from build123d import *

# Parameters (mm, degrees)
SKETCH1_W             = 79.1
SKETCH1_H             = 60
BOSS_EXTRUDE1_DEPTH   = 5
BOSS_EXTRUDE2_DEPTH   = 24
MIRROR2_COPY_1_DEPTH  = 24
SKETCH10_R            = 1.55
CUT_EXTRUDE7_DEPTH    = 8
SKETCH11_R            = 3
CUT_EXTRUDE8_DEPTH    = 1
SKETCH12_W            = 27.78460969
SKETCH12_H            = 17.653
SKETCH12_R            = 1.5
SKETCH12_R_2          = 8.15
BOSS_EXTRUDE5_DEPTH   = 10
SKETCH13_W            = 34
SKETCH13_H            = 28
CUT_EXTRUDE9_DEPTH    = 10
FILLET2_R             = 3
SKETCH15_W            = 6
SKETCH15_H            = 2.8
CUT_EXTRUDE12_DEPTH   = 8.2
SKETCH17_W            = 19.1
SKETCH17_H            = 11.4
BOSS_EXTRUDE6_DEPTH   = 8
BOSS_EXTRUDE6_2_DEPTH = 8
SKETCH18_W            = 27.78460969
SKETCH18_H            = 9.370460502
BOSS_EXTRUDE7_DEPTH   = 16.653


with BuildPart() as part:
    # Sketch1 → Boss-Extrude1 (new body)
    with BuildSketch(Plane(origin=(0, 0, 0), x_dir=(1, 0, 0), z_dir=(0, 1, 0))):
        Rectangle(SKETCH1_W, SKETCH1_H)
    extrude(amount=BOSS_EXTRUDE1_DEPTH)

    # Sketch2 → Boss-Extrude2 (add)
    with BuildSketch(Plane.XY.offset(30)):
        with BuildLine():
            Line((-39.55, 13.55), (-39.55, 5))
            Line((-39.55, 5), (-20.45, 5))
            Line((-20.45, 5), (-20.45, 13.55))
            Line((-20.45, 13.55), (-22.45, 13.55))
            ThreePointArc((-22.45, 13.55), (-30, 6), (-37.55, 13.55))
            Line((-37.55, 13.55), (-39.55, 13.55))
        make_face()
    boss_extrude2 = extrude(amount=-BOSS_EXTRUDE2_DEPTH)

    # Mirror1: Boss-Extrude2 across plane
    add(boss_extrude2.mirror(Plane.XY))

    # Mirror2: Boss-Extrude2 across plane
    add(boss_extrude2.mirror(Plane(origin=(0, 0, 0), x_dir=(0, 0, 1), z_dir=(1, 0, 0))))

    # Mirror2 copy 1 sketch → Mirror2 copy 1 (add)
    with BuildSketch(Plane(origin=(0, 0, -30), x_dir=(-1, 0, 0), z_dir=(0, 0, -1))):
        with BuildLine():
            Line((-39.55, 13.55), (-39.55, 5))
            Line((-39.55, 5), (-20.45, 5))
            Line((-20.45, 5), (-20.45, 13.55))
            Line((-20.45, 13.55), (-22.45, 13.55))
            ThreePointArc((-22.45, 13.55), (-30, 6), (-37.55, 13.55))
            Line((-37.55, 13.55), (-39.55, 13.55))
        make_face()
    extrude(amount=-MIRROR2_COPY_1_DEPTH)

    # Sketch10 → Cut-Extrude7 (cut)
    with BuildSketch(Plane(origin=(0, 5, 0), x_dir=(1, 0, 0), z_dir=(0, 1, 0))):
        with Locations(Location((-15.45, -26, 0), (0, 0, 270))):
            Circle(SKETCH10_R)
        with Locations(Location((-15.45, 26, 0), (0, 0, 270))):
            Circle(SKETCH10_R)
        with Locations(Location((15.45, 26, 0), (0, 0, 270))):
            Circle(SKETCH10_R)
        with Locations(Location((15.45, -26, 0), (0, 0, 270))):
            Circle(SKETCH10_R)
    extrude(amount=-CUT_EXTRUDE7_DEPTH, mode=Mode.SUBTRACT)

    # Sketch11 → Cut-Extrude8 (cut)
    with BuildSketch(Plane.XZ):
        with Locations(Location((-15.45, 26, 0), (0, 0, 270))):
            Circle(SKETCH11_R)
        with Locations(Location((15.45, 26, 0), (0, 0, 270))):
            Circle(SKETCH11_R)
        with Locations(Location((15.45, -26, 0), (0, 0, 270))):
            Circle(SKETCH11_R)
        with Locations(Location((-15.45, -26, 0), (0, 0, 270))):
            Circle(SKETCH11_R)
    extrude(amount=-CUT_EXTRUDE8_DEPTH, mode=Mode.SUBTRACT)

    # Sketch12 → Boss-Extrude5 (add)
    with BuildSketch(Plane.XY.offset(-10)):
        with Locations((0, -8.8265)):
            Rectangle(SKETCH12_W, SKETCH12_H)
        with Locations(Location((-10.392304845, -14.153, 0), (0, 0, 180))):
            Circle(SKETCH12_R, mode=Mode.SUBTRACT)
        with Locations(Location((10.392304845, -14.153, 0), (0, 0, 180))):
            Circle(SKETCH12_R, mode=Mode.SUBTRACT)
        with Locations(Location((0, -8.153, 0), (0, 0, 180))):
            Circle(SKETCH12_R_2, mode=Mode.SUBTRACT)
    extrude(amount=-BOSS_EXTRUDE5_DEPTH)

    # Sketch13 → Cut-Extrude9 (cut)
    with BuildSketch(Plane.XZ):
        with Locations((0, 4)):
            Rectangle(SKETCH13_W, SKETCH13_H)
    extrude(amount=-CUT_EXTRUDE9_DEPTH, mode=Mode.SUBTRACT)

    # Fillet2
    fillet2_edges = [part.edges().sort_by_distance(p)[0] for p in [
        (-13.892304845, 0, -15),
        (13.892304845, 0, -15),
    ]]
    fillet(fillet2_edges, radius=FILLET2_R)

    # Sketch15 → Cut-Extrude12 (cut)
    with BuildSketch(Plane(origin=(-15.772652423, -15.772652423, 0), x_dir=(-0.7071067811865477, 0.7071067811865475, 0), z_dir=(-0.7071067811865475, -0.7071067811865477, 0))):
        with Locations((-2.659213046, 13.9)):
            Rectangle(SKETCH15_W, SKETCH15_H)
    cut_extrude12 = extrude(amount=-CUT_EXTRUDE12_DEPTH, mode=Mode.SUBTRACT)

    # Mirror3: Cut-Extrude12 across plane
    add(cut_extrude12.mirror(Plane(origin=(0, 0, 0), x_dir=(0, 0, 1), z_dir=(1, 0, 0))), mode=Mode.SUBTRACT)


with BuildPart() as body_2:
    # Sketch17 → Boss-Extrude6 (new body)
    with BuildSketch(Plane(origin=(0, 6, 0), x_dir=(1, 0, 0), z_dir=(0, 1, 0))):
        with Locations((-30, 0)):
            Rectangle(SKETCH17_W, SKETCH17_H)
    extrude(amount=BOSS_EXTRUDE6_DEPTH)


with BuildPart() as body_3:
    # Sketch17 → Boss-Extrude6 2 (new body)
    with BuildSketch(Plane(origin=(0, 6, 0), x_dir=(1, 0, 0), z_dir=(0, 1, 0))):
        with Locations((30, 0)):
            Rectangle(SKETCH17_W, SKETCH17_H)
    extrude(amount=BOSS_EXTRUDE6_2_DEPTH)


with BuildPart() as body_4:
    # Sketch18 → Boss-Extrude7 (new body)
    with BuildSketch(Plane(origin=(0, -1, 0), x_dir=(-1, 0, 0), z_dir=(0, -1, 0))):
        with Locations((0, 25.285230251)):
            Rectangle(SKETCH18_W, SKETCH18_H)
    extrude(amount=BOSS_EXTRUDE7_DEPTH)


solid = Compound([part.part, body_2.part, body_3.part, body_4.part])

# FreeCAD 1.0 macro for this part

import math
import FreeCAD as App
import Part
import Sketcher
from FreeCAD import Vector


def edges_at(feature, points):
    """Names of the edges that pass closest to the given points."""
    edges = feature.Shape.Edges
    near = lambda p: min(range(len(edges)), key=lambda i: edges[i].distToShape(Part.Vertex(*p))[0])
    return sorted({f"Edge{near(p) + 1}" for p in points})

doc = App.newDocument("Part")
body = doc.addObject("PartDesign::Body", "Body")

# Sketch on XZ plane
sketch1 = body.newObject("Sketcher::SketchObject", "Sketch")
sketch1.AttachmentSupport = (doc.getObject("XZ_Plane"), [""])
sketch1.MapMode = "FlatFace"
sketch1.addGeometry(Part.LineSegment(Vector(-40, -30, 0), Vector(-40, 30, 0)), False)
sketch1.addGeometry(Part.LineSegment(Vector(-40, 30, 0), Vector(40, 30, 0)), False)
sketch1.addGeometry(Part.LineSegment(Vector(40, 30, 0), Vector(40, -30, 0)), False)
sketch1.addGeometry(Part.LineSegment(Vector(40, -30, 0), Vector(-40, -30, 0)), False)
sketch1.addConstraint(Sketcher.Constraint("Coincident", 0, 2, 1, 1))
sketch1.addConstraint(Sketcher.Constraint("Coincident", 1, 2, 2, 1))
sketch1.addConstraint(Sketcher.Constraint("Coincident", 2, 2, 3, 1))
sketch1.addConstraint(Sketcher.Constraint("Coincident", 3, 2, 0, 1))
sketch1.addConstraint(Sketcher.Constraint("Vertical", 0))
sketch1.addConstraint(Sketcher.Constraint("Horizontal", 1))
sketch1.addConstraint(Sketcher.Constraint("Vertical", 2))
sketch1.addConstraint(Sketcher.Constraint("Horizontal", 3))
sketch1.addConstraint(Sketcher.Constraint("Symmetric", 0, 2, 2, 2, -1, 1))
sketch1.addConstraint(Sketcher.Constraint("DistanceY", 0, 1, 0, 2, 60.0))
sketch1.addConstraint(Sketcher.Constraint("DistanceX", 1, 1, 1, 2, 79.1))
pad1 = body.newObject("PartDesign::Pad", "Pad")
pad1.Profile = sketch1
pad1.Length = 5
pad1.Reversed = True

# Sketch on XY plane
sketch2 = body.newObject("Sketcher::SketchObject", "Sketch001")
sketch2.AttachmentSupport = (doc.getObject("XY_Plane"), [""])
sketch2.MapMode = "FlatFace"
sketch2.AttachmentOffset = App.Placement(Vector(0, 0, 30), App.Rotation())
sketch2.addGeometry(Part.LineSegment(Vector(-39.5, 13.6, 0), Vector(-39.5, 5, 0)), False)
sketch2.addGeometry(Part.LineSegment(Vector(-39.5, 5, 0), Vector(-20.4, 5, 0)), False)
sketch2.addGeometry(Part.LineSegment(Vector(-20.4, 5, 0), Vector(-20.4, 13.6, 0)), False)
sketch2.addGeometry(Part.LineSegment(Vector(-20.4, 13.6, 0), Vector(-22.4, 13.6, 0)), False)
sketch2.addGeometry(Part.ArcOfCircle(Part.Circle(Vector(-30, 13.6, 0), Vector(0, 0, 1), 7.5), math.radians(180), math.radians(360)), False)
sketch2.addGeometry(Part.LineSegment(Vector(-37.5, 13.6, 0), Vector(-39.5, 13.6, 0)), False)
sketch2.addConstraint(Sketcher.Constraint("Coincident", 0, 2, 1, 1))
sketch2.addConstraint(Sketcher.Constraint("Coincident", 1, 2, 2, 1))
sketch2.addConstraint(Sketcher.Constraint("Coincident", 2, 2, 3, 1))
sketch2.addConstraint(Sketcher.Constraint("Coincident", 3, 2, 4, 2))
sketch2.addConstraint(Sketcher.Constraint("Coincident", 4, 1, 5, 1))
sketch2.addConstraint(Sketcher.Constraint("Coincident", 5, 2, 0, 1))
sketch2.addConstraint(Sketcher.Constraint("Vertical", 0))
sketch2.addConstraint(Sketcher.Constraint("Horizontal", 1))
sketch2.addConstraint(Sketcher.Constraint("Vertical", 2))
sketch2.addConstraint(Sketcher.Constraint("Horizontal", 3))
sketch2.addConstraint(Sketcher.Constraint("Horizontal", 5))
sketch2.addConstraint(Sketcher.Constraint("Horizontal", 4, 3, 2, 2))
sketch2.addConstraint(Sketcher.Constraint("Horizontal", 3, 2, 4, 1))
sketch2.addConstraint(Sketcher.Constraint("Equal", 3, 5))
sketch2.addConstraint(Sketcher.Constraint("DistanceX", 3, 2, 3, 1, 2.0))
sketch2.addConstraint(Sketcher.Constraint("Radius", 4, 7.55))
sketch2.addConstraint(Sketcher.Constraint("DistanceX", 4, 3, -1, 1, 30.0))
sketch2.addConstraint(Sketcher.Constraint("DistanceY", -1, 1, 0, 2, 5.0))
sketch2.addConstraint(Sketcher.Constraint("DistanceY", 0, 2, 0, 1, 8.55))
pad2 = body.newObject("PartDesign::Pad", "Pad001")
pad2.Profile = sketch2
pad2.Length = 24
pad2.Reversed = True
doc.recompute()

mirrored = body.newObject("PartDesign::Mirrored", "Mirrored")
mirrored.Originals = [pad2]
mirrored.MirrorPlane = (doc.getObject("XY_Plane"), [""])
body.Tip = mirrored
doc.recompute()

mirrored2 = body.newObject("PartDesign::Mirrored", "Mirrored001")
mirrored2.Originals = [pad2]
mirrored2.MirrorPlane = (doc.getObject("YZ_Plane"), [""])
body.Tip = mirrored2

# Sketch on XY plane
sketch3 = body.newObject("Sketcher::SketchObject", "Sketch002")
sketch3.AttachmentSupport = (doc.getObject("XY_Plane"), [""])
sketch3.MapMode = "FlatFace"
sketch3.AttachmentOffset = App.Placement(Vector(0, 0, -30), App.Rotation())
sketch3.addGeometry(Part.LineSegment(Vector(39.5, 13.6, 0), Vector(39.5, 5, 0)), False)
sketch3.addGeometry(Part.LineSegment(Vector(39.5, 5, 0), Vector(20.4, 5, 0)), False)
sketch3.addGeometry(Part.LineSegment(Vector(20.4, 5, 0), Vector(20.4, 13.6, 0)), False)
sketch3.addGeometry(Part.LineSegment(Vector(20.4, 13.6, 0), Vector(22.4, 13.6, 0)), False)
sketch3.addGeometry(Part.ArcOfCircle(Part.Circle(Vector(30, 13.6, 0), Vector(0, 0, 1), 7.5), math.radians(180), math.radians(360)), False)
sketch3.addGeometry(Part.LineSegment(Vector(37.5, 13.6, 0), Vector(39.5, 13.6, 0)), False)
sketch3.addConstraint(Sketcher.Constraint("Coincident", 0, 2, 1, 1))
sketch3.addConstraint(Sketcher.Constraint("Coincident", 1, 2, 2, 1))
sketch3.addConstraint(Sketcher.Constraint("Coincident", 2, 2, 3, 1))
sketch3.addConstraint(Sketcher.Constraint("Coincident", 3, 2, 4, 1))
sketch3.addConstraint(Sketcher.Constraint("Coincident", 4, 2, 5, 1))
sketch3.addConstraint(Sketcher.Constraint("Coincident", 5, 2, 0, 1))
sketch3.addConstraint(Sketcher.Constraint("Vertical", 0))
sketch3.addConstraint(Sketcher.Constraint("Horizontal", 1))
sketch3.addConstraint(Sketcher.Constraint("Vertical", 2))
sketch3.addConstraint(Sketcher.Constraint("Horizontal", 3))
sketch3.addConstraint(Sketcher.Constraint("Horizontal", 5))
sketch3.addConstraint(Sketcher.Constraint("Horizontal", 4, 3, 2, 2))
sketch3.addConstraint(Sketcher.Constraint("Horizontal", 3, 2, 4, 2))
sketch3.addConstraint(Sketcher.Constraint("Equal", 3, 5))
sketch3.addConstraint(Sketcher.Constraint("DistanceX", 3, 1, 3, 2, 2.0))
sketch3.addConstraint(Sketcher.Constraint("Radius", 4, 7.55))
sketch3.addConstraint(Sketcher.Constraint("DistanceX", -1, 1, 4, 3, 30.0))
sketch3.addConstraint(Sketcher.Constraint("DistanceY", -1, 1, 0, 2, 5.0))
sketch3.addConstraint(Sketcher.Constraint("DistanceY", 0, 2, 0, 1, 8.55))
pad3 = body.newObject("PartDesign::Pad", "Pad002")
pad3.Profile = sketch3
pad3.Length = 24

# Sketch on XZ plane
sketch4 = body.newObject("Sketcher::SketchObject", "Sketch003")
sketch4.AttachmentSupport = (doc.getObject("XZ_Plane"), [""])
sketch4.MapMode = "FlatFace"
sketch4.AttachmentOffset = App.Placement(Vector(0, 0, -5), App.Rotation())
sketch4.addGeometry(Part.Circle(Vector(-15.4, 26, 0), Vector(0, 0, 1), 1.6), False)
sketch4.addGeometry(Part.Circle(Vector(-15.4, -26, 0), Vector(0, 0, 1), 1.6), False)
sketch4.addGeometry(Part.Circle(Vector(15.4, -26, 0), Vector(0, 0, 1), 1.6), False)
sketch4.addGeometry(Part.Circle(Vector(15.4, 26, 0), Vector(0, 0, 1), 1.6), False)
sketch4.addConstraint(Sketcher.Constraint("Equal", 0, 1))
sketch4.addConstraint(Sketcher.Constraint("Equal", 1, 2))
sketch4.addConstraint(Sketcher.Constraint("Equal", 2, 3))
sketch4.addConstraint(Sketcher.Constraint("Symmetric", 0, 3, 2, 3, -1, 1))
sketch4.addConstraint(Sketcher.Constraint("Symmetric", 1, 3, 3, 3, -1, 1))
sketch4.addConstraint(Sketcher.Constraint("Symmetric", 1, 3, 2, 3, -2))
sketch4.addConstraint(Sketcher.Constraint("Diameter", 0, 3.1))
sketch4.addConstraint(Sketcher.Constraint("DistanceY", -1, 1, 0, 3, 26.0))
sketch4.addConstraint(Sketcher.Constraint("DistanceX", 1, 3, 2, 3, 30.9))
pocket1 = body.newObject("PartDesign::Pocket", "Pocket")
pocket1.Profile = sketch4
pocket1.Length = 8
pocket1.Reversed = True

# Sketch on XZ plane
sketch5 = body.newObject("Sketcher::SketchObject", "Sketch004")
sketch5.AttachmentSupport = (doc.getObject("XZ_Plane"), [""])
sketch5.MapMode = "FlatFace"
sketch5.addGeometry(Part.Circle(Vector(-15.4, 26, 0), Vector(0, 0, 1), 3), False)
sketch5.addGeometry(Part.Circle(Vector(15.4, 26, 0), Vector(0, 0, 1), 3), False)
sketch5.addGeometry(Part.Circle(Vector(15.4, -26, 0), Vector(0, 0, 1), 3), False)
sketch5.addGeometry(Part.Circle(Vector(-15.4, -26, 0), Vector(0, 0, 1), 3), False)
sketch5.addConstraint(Sketcher.Constraint("Equal", 0, 1))
sketch5.addConstraint(Sketcher.Constraint("Equal", 1, 2))
sketch5.addConstraint(Sketcher.Constraint("Equal", 2, 3))
sketch5.addConstraint(Sketcher.Constraint("Symmetric", 0, 3, 2, 3, -1, 1))
sketch5.addConstraint(Sketcher.Constraint("Symmetric", 1, 3, 3, 3, -1, 1))
sketch5.addConstraint(Sketcher.Constraint("Symmetric", 0, 3, 1, 3, -2))
sketch5.addConstraint(Sketcher.Constraint("Diameter", 0, 6.0))
sketch5.addConstraint(Sketcher.Constraint("DistanceY", -1, 1, 0, 3, 26.0))
sketch5.addConstraint(Sketcher.Constraint("DistanceX", 0, 3, 1, 3, 30.9))
pocket2 = body.newObject("PartDesign::Pocket", "Pocket001")
pocket2.Profile = sketch5
pocket2.Length = 1

# Sketch on XY plane
sketch6 = body.newObject("Sketcher::SketchObject", "Sketch005")
sketch6.AttachmentSupport = (doc.getObject("XY_Plane"), [""])
sketch6.MapMode = "FlatFace"
sketch6.AttachmentOffset = App.Placement(Vector(0, 0, -10), App.Rotation())
sketch6.addGeometry(Part.LineSegment(Vector(-13.9, 0, 0), Vector(-13.9, -17.7, 0)), False)
sketch6.addGeometry(Part.LineSegment(Vector(-13.9, -17.7, 0), Vector(13.9, -17.7, 0)), False)
sketch6.addGeometry(Part.LineSegment(Vector(13.9, -17.7, 0), Vector(13.9, 0, 0)), False)
sketch6.addGeometry(Part.LineSegment(Vector(13.9, 0, 0), Vector(-13.9, 0, 0)), False)
sketch6.addGeometry(Part.Circle(Vector(-10.4, -14.2, 0), Vector(0, 0, 1), 1.5), False)
sketch6.addGeometry(Part.Circle(Vector(10.4, -14.2, 0), Vector(0, 0, 1), 1.5), False)
sketch6.addGeometry(Part.Circle(Vector(0, -8.2, 0), Vector(0, 0, 1), 8.2), False)
sketch6.addConstraint(Sketcher.Constraint("Coincident", 0, 2, 1, 1))
sketch6.addConstraint(Sketcher.Constraint("Coincident", 1, 2, 2, 1))
sketch6.addConstraint(Sketcher.Constraint("Coincident", 2, 2, 3, 1))
sketch6.addConstraint(Sketcher.Constraint("Coincident", 3, 2, 0, 1))
sketch6.addConstraint(Sketcher.Constraint("Vertical", 0))
sketch6.addConstraint(Sketcher.Constraint("Horizontal", 1))
sketch6.addConstraint(Sketcher.Constraint("Vertical", 2))
sketch6.addConstraint(Sketcher.Constraint("Horizontal", 3))
sketch6.addConstraint(Sketcher.Constraint("Equal", 4, 5))
sketch6.addConstraint(Sketcher.Constraint("Symmetric", 2, 2, 3, 2, -1, 1))
sketch6.addConstraint(Sketcher.Constraint("Symmetric", 4, 3, 5, 3, -2))
sketch6.addConstraint(Sketcher.Constraint("PointOnObject", 6, 3, -2))
sketch6.addConstraint(Sketcher.Constraint("Diameter", 4, 3.0))
sketch6.addConstraint(Sketcher.Constraint("Diameter", 6, 16.3))
sketch6.addConstraint(Sketcher.Constraint("DistanceY", 4, 3, 6, 3, 6.0))
sketch6.addConstraint(Sketcher.Constraint("DistanceX", 0, 2, 4, 3, 3.5))
sketch6.addConstraint(Sketcher.Constraint("DistanceY", 0, 2, 4, 3, 3.5))
sketch6.addConstraint(Sketcher.Constraint("DistanceY", 0, 2, 0, 1, 17.653))
sketch6.addConstraint(Sketcher.Constraint("DistanceX", 1, 1, 1, 2, 27.78461))
pad4 = body.newObject("PartDesign::Pad", "Pad003")
pad4.Profile = sketch6
pad4.Length = 10
pad4.Reversed = True

# Sketch on XZ plane
sketch7 = body.newObject("Sketcher::SketchObject", "Sketch006")
sketch7.AttachmentSupport = (doc.getObject("XZ_Plane"), [""])
sketch7.MapMode = "FlatFace"
sketch7.addGeometry(Part.LineSegment(Vector(-17, 18, 0), Vector(-17, -10, 0)), False)
sketch7.addGeometry(Part.LineSegment(Vector(-17, -10, 0), Vector(17, -10, 0)), False)
sketch7.addGeometry(Part.LineSegment(Vector(17, -10, 0), Vector(17, 18, 0)), False)
sketch7.addGeometry(Part.LineSegment(Vector(17, 18, 0), Vector(-17, 18, 0)), False)
sketch7.addConstraint(Sketcher.Constraint("Coincident", 0, 2, 1, 1))
sketch7.addConstraint(Sketcher.Constraint("Coincident", 1, 2, 2, 1))
sketch7.addConstraint(Sketcher.Constraint("Coincident", 2, 2, 3, 1))
sketch7.addConstraint(Sketcher.Constraint("Coincident", 3, 2, 0, 1))
sketch7.addConstraint(Sketcher.Constraint("Vertical", 0))
sketch7.addConstraint(Sketcher.Constraint("Horizontal", 1))
sketch7.addConstraint(Sketcher.Constraint("Vertical", 2))
sketch7.addConstraint(Sketcher.Constraint("Horizontal", 3))
sketch7.addConstraint(Sketcher.Constraint("DistanceX", 1, 1, 1, 2, 34.0))
sketch7.addConstraint(Sketcher.Constraint("DistanceY", 0, 2, 0, 1, 28.0))
sketch7.addConstraint(Sketcher.Constraint("DistanceX", 0, 2, -1, 1, 17.0))
sketch7.addConstraint(Sketcher.Constraint("DistanceY", 0, 2, -1, 1, 10.0))
pocket3 = body.newObject("PartDesign::Pocket", "Pocket002")
pocket3.Profile = sketch7
pocket3.Length = 10
doc.recompute()

fillet = body.newObject("PartDesign::Fillet", "Fillet")
fillet.Base = (pocket3, edges_at(pocket3, [(-13.892, 0, -15), (13.892, 0, -15)]))
fillet.Radius = 3

# Sketch on an angled plane
sketch8 = body.newObject("Sketcher::SketchObject", "Sketch007")
sketch8.Placement = App.Placement(Vector(-15.772652, -15.772652, 0), App.Rotation(Vector(-0.707106781, 0.707106781, 0), Vector(0, 0, -0.999999999), Vector(-0.707106781, -0.707106781, 0), "ZXY"))
sketch8.addGeometry(Part.LineSegment(Vector(-5.7, 15.3, 0), Vector(-5.7, 12.5, 0)), False)
sketch8.addGeometry(Part.LineSegment(Vector(-5.7, 12.5, 0), Vector(0.3, 12.5, 0)), False)
sketch8.addGeometry(Part.LineSegment(Vector(0.3, 12.5, 0), Vector(0.3, 15.3, 0)), False)
sketch8.addGeometry(Part.LineSegment(Vector(0.3, 15.3, 0), Vector(-5.7, 15.3, 0)), False)
sketch8.addConstraint(Sketcher.Constraint("Coincident", 0, 2, 1, 1))
sketch8.addConstraint(Sketcher.Constraint("Coincident", 1, 2, 2, 1))
sketch8.addConstraint(Sketcher.Constraint("Coincident", 2, 2, 3, 1))
sketch8.addConstraint(Sketcher.Constraint("Coincident", 3, 2, 0, 1))
sketch8.addConstraint(Sketcher.Constraint("Vertical", 0))
sketch8.addConstraint(Sketcher.Constraint("Horizontal", 1))
sketch8.addConstraint(Sketcher.Constraint("Vertical", 2))
sketch8.addConstraint(Sketcher.Constraint("Horizontal", 3))
sketch8.addConstraint(Sketcher.Constraint("DistanceX", 1, 1, 1, 2, 6.0))
sketch8.addConstraint(Sketcher.Constraint("DistanceY", 0, 2, 0, 1, 2.8))
sketch8.addConstraint(Sketcher.Constraint("DistanceY", -1, 1, 0, 2, 12.5))
sketch8.addConstraint(Sketcher.Constraint("DistanceX", 0, 2, -1, 1, 5.659213))
pocket4 = body.newObject("PartDesign::Pocket", "Pocket003")
pocket4.Profile = sketch8
pocket4.Length = 8.2
doc.recompute()

mirrored3 = body.newObject("PartDesign::Mirrored", "Mirrored002")
mirrored3.Originals = [pocket4]
mirrored3.MirrorPlane = (doc.getObject("YZ_Plane"), [""])
body.Tip = mirrored3
body2 = doc.addObject("PartDesign::Body", "Body001")

# Sketch on XZ plane
sketch9 = body2.newObject("Sketcher::SketchObject", "Sketch008")
sketch9.AttachmentSupport = (doc.getObject("XZ_Plane001"), [""])
sketch9.MapMode = "FlatFace"
sketch9.AttachmentOffset = App.Placement(Vector(0, 0, -6), App.Rotation())
sketch9.addGeometry(Part.LineSegment(Vector(-40, -6, 0), Vector(-40, 6, 0)), False)
sketch9.addGeometry(Part.LineSegment(Vector(-40, 6, 0), Vector(-20, 6, 0)), False)
sketch9.addGeometry(Part.LineSegment(Vector(-20, 6, 0), Vector(-20, -6, 0)), False)
sketch9.addGeometry(Part.LineSegment(Vector(-20, -6, 0), Vector(-40, -6, 0)), False)
sketch9.addConstraint(Sketcher.Constraint("Coincident", 0, 2, 1, 1))
sketch9.addConstraint(Sketcher.Constraint("Coincident", 1, 2, 2, 1))
sketch9.addConstraint(Sketcher.Constraint("Coincident", 2, 2, 3, 1))
sketch9.addConstraint(Sketcher.Constraint("Coincident", 3, 2, 0, 1))
sketch9.addConstraint(Sketcher.Constraint("Vertical", 0))
sketch9.addConstraint(Sketcher.Constraint("Horizontal", 1))
sketch9.addConstraint(Sketcher.Constraint("Vertical", 2))
sketch9.addConstraint(Sketcher.Constraint("Horizontal", 3))
sketch9.addConstraint(Sketcher.Constraint("DistanceX", 1, 1, 1, 2, 19.1))
sketch9.addConstraint(Sketcher.Constraint("DistanceY", 0, 1, 0, 2, 11.4))
sketch9.addConstraint(Sketcher.Constraint("DistanceY", -1, 1, 0, 2, 5.7))
sketch9.addConstraint(Sketcher.Constraint("DistanceX", 0, 2, -1, 1, 39.55))
pad5 = body2.newObject("PartDesign::Pad", "Pad004")
pad5.Profile = sketch9
pad5.Length = 8
pad5.Reversed = True
body3 = doc.addObject("PartDesign::Body", "Body002")

# Sketch on XZ plane
sketch10 = body3.newObject("Sketcher::SketchObject", "Sketch009")
sketch10.AttachmentSupport = (doc.getObject("XZ_Plane002"), [""])
sketch10.MapMode = "FlatFace"
sketch10.AttachmentOffset = App.Placement(Vector(0, 0, -6), App.Rotation())
sketch10.addGeometry(Part.LineSegment(Vector(20, -6, 0), Vector(20, 6, 0)), False)
sketch10.addGeometry(Part.LineSegment(Vector(20, 6, 0), Vector(40, 6, 0)), False)
sketch10.addGeometry(Part.LineSegment(Vector(40, 6, 0), Vector(40, -6, 0)), False)
sketch10.addGeometry(Part.LineSegment(Vector(40, -6, 0), Vector(20, -6, 0)), False)
sketch10.addConstraint(Sketcher.Constraint("Coincident", 0, 2, 1, 1))
sketch10.addConstraint(Sketcher.Constraint("Coincident", 1, 2, 2, 1))
sketch10.addConstraint(Sketcher.Constraint("Coincident", 2, 2, 3, 1))
sketch10.addConstraint(Sketcher.Constraint("Coincident", 3, 2, 0, 1))
sketch10.addConstraint(Sketcher.Constraint("Vertical", 0))
sketch10.addConstraint(Sketcher.Constraint("Horizontal", 1))
sketch10.addConstraint(Sketcher.Constraint("Vertical", 2))
sketch10.addConstraint(Sketcher.Constraint("Horizontal", 3))
sketch10.addConstraint(Sketcher.Constraint("DistanceX", 1, 1, 1, 2, 19.1))
sketch10.addConstraint(Sketcher.Constraint("DistanceY", 0, 1, 0, 2, 11.4))
sketch10.addConstraint(Sketcher.Constraint("DistanceY", -1, 1, 0, 2, 5.7))
sketch10.addConstraint(Sketcher.Constraint("DistanceX", -1, 1, 0, 2, 20.45))
pad6 = body3.newObject("PartDesign::Pad", "Pad005")
pad6.Profile = sketch10
pad6.Length = 8
pad6.Reversed = True
body4 = doc.addObject("PartDesign::Body", "Body003")

# Sketch on XZ plane
sketch11 = body4.newObject("Sketcher::SketchObject", "Sketch010")
sketch11.AttachmentSupport = (doc.getObject("XZ_Plane003"), [""])
sketch11.MapMode = "FlatFace"
sketch11.AttachmentOffset = App.Placement(Vector(0, 0, 1), App.Rotation())
sketch11.addGeometry(Part.LineSegment(Vector(14, -30, 0), Vector(14, -21, 0)), False)
sketch11.addGeometry(Part.LineSegment(Vector(14, -21, 0), Vector(-14, -21, 0)), False)
sketch11.addGeometry(Part.LineSegment(Vector(-14, -21, 0), Vector(-14, -30, 0)), False)
sketch11.addGeometry(Part.LineSegment(Vector(-14, -30, 0), Vector(14, -30, 0)), False)
sketch11.addConstraint(Sketcher.Constraint("Coincident", 0, 2, 1, 1))
sketch11.addConstraint(Sketcher.Constraint("Coincident", 1, 2, 2, 1))
sketch11.addConstraint(Sketcher.Constraint("Coincident", 2, 2, 3, 1))
sketch11.addConstraint(Sketcher.Constraint("Coincident", 3, 2, 0, 1))
sketch11.addConstraint(Sketcher.Constraint("Vertical", 0))
sketch11.addConstraint(Sketcher.Constraint("Horizontal", 1))
sketch11.addConstraint(Sketcher.Constraint("Vertical", 2))
sketch11.addConstraint(Sketcher.Constraint("Horizontal", 3))
sketch11.addConstraint(Sketcher.Constraint("DistanceY", 0, 2, -1, 1, 20.6))
sketch11.addConstraint(Sketcher.Constraint("DistanceX", 1, 2, 1, 1, 27.78461))
sketch11.addConstraint(Sketcher.Constraint("DistanceY", 0, 1, 0, 2, 9.370461))
sketch11.addConstraint(Sketcher.Constraint("DistanceX", -1, 1, 0, 2, 13.892305))
pad7 = body4.newObject("PartDesign::Pad", "Pad006")
pad7.Profile = sketch11
pad7.Length = 16.653

doc.recompute()
